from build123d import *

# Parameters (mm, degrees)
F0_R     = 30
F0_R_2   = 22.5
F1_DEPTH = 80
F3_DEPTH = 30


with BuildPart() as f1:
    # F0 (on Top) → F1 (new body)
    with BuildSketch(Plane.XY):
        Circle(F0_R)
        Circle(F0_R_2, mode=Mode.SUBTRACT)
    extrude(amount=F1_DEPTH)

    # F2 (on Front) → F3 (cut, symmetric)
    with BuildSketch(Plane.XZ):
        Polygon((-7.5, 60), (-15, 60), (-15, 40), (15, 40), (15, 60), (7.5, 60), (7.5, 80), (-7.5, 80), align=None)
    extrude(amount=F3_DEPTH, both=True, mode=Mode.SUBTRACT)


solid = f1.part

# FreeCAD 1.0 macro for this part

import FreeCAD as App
import Part
import Sketcher
from FreeCAD import Vector

doc = App.newDocument("Part")
body = doc.addObject("PartDesign::Body", "Body")

sketch1 = body.newObject("Sketcher::SketchObject", "Sketch")
sketch1.AttachmentSupport = (doc.getObject("XY_Plane"), [""])
sketch1.MapMode = "FlatFace"
sketch1.addGeometry([
    Part.Circle(Vector(0, 0, 0), Vector(0, 0, 1), 30),
    Part.Circle(Vector(0, 0, 0), Vector(0, 0, 1), 22),
], False)
sketch1.addConstraint([
    Sketcher.Constraint("Coincident", 0, 3, -1, 1),
    Sketcher.Constraint("Coincident", 1, 3, -1, 1),
    Sketcher.Constraint("Diameter", 0, 60.0),
    Sketcher.Constraint("Diameter", 1, 45.0),
])
pad1 = body.newObject("PartDesign::Pad", "Pad")
pad1.Profile = sketch1
pad1.Length = 80

sketch2 = body.newObject("Sketcher::SketchObject", "Sketch001")
sketch2.AttachmentSupport = (doc.getObject("XZ_Plane"), [""])
sketch2.MapMode = "FlatFace"
sketch2.addGeometry([
    Part.LineSegment(Vector(-8, 60, 0), Vector(-15, 60, 0)),
    Part.LineSegment(Vector(-15, 60, 0), Vector(-15, 40, 0)),
    Part.LineSegment(Vector(-15, 40, 0), Vector(15, 40, 0)),
    Part.LineSegment(Vector(15, 40, 0), Vector(15, 60, 0)),
    Part.LineSegment(Vector(15, 60, 0), Vector(8, 60, 0)),
    Part.LineSegment(Vector(8, 60, 0), Vector(8, 80, 0)),
    Part.LineSegment(Vector(8, 80, 0), Vector(-8, 80, 0)),
    Part.LineSegment(Vector(-8, 80, 0), Vector(-8, 60, 0)),
], False)
sketch2.addConstraint([
    Sketcher.Constraint("Coincident", 0, 2, 1, 1),
    Sketcher.Constraint("Coincident", 1, 2, 2, 1),
    Sketcher.Constraint("Coincident", 2, 2, 3, 1),
    Sketcher.Constraint("Coincident", 3, 2, 4, 1),
    Sketcher.Constraint("Coincident", 4, 2, 5, 1),
    Sketcher.Constraint("Coincident", 5, 2, 6, 1),
    Sketcher.Constraint("Coincident", 6, 2, 7, 1),
    Sketcher.Constraint("Coincident", 7, 2, 0, 1),
    Sketcher.Constraint("Horizontal", 0),
    Sketcher.Constraint("Vertical", 1),
    Sketcher.Constraint("Horizontal", 2),
    Sketcher.Constraint("Vertical", 3),
    Sketcher.Constraint("Horizontal", 4),
    Sketcher.Constraint("Vertical", 5),
    Sketcher.Constraint("Horizontal", 6),
    Sketcher.Constraint("Vertical", 7),
    Sketcher.Constraint("Symmetric", 0, 2, 3, 2, -2),
    Sketcher.Constraint("Equal", 0, 4),
    Sketcher.Constraint("Equal", 3, 5),
    Sketcher.Constraint("DistanceX", 2, 1, 2, 2, 30.0),
    Sketcher.Constraint("DistanceX", 6, 2, 6, 1, 15.0),
    Sketcher.Constraint("DistanceY", 1, 2, 1, 1, 20.0),
    Sketcher.Constraint("DistanceY", -1, 1, 0, 2, 60.0),
])
pocket1 = body.newObject("PartDesign::Pocket", "Pocket")
pocket1.Profile = sketch2
pocket1.Length = 60
pocket1.Midplane = True

doc.recompute()
